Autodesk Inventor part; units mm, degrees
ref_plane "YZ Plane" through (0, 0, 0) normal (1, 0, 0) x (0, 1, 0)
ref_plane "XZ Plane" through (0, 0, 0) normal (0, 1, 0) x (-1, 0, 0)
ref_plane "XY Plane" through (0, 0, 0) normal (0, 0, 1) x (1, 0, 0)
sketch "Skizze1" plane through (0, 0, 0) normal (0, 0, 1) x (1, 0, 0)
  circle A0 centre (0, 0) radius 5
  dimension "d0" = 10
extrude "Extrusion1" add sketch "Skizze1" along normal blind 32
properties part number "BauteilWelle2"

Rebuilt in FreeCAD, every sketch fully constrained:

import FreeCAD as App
import Part
import Sketcher
Q = App.Units.Quantity

doc = App.newDocument("Part")
params = doc.addObject("Spreadsheet::Sheet", "Params")
for row, (alias, value) in enumerate([
    ("sketch1_diameter", "10 mm"),
    ("pad1_length", "32 mm"),
], start=1):
    params.set(f"A{row}", alias)
    params.set(f"B{row}", "=" + value)
    params.setAlias(f"B{row}", alias)

body = doc.addObject("PartDesign::Body", "Body")

# Sketch on XY plane
sketch1 = doc.addObject("Sketcher::SketchObject", "Sketch")
body.addObject(sketch1)
sketch1.AttachmentSupport = (doc.XY_Plane, [""])
sketch1.MapMode = "FlatFace"
sketch1.addGeometry(Part.Circle(App.Vector(0, 0, 0), App.Vector(0, 0, 1), 5), False)
sketch1.addConstraint([
    Sketcher.Constraint("Coincident", 0, 3, -1, 1),
    Sketcher.Constraint("Diameter", 0, Q("10 mm")),
])
sketch1.setExpression("Constraints[1]", "Params.sketch1_diameter")
pad1 = doc.addObject("PartDesign::Pad", "Pad")
body.addObject(pad1)
pad1.Profile = sketch1
pad1.setExpression("Length", "Params.pad1_length")

doc.recompute()
